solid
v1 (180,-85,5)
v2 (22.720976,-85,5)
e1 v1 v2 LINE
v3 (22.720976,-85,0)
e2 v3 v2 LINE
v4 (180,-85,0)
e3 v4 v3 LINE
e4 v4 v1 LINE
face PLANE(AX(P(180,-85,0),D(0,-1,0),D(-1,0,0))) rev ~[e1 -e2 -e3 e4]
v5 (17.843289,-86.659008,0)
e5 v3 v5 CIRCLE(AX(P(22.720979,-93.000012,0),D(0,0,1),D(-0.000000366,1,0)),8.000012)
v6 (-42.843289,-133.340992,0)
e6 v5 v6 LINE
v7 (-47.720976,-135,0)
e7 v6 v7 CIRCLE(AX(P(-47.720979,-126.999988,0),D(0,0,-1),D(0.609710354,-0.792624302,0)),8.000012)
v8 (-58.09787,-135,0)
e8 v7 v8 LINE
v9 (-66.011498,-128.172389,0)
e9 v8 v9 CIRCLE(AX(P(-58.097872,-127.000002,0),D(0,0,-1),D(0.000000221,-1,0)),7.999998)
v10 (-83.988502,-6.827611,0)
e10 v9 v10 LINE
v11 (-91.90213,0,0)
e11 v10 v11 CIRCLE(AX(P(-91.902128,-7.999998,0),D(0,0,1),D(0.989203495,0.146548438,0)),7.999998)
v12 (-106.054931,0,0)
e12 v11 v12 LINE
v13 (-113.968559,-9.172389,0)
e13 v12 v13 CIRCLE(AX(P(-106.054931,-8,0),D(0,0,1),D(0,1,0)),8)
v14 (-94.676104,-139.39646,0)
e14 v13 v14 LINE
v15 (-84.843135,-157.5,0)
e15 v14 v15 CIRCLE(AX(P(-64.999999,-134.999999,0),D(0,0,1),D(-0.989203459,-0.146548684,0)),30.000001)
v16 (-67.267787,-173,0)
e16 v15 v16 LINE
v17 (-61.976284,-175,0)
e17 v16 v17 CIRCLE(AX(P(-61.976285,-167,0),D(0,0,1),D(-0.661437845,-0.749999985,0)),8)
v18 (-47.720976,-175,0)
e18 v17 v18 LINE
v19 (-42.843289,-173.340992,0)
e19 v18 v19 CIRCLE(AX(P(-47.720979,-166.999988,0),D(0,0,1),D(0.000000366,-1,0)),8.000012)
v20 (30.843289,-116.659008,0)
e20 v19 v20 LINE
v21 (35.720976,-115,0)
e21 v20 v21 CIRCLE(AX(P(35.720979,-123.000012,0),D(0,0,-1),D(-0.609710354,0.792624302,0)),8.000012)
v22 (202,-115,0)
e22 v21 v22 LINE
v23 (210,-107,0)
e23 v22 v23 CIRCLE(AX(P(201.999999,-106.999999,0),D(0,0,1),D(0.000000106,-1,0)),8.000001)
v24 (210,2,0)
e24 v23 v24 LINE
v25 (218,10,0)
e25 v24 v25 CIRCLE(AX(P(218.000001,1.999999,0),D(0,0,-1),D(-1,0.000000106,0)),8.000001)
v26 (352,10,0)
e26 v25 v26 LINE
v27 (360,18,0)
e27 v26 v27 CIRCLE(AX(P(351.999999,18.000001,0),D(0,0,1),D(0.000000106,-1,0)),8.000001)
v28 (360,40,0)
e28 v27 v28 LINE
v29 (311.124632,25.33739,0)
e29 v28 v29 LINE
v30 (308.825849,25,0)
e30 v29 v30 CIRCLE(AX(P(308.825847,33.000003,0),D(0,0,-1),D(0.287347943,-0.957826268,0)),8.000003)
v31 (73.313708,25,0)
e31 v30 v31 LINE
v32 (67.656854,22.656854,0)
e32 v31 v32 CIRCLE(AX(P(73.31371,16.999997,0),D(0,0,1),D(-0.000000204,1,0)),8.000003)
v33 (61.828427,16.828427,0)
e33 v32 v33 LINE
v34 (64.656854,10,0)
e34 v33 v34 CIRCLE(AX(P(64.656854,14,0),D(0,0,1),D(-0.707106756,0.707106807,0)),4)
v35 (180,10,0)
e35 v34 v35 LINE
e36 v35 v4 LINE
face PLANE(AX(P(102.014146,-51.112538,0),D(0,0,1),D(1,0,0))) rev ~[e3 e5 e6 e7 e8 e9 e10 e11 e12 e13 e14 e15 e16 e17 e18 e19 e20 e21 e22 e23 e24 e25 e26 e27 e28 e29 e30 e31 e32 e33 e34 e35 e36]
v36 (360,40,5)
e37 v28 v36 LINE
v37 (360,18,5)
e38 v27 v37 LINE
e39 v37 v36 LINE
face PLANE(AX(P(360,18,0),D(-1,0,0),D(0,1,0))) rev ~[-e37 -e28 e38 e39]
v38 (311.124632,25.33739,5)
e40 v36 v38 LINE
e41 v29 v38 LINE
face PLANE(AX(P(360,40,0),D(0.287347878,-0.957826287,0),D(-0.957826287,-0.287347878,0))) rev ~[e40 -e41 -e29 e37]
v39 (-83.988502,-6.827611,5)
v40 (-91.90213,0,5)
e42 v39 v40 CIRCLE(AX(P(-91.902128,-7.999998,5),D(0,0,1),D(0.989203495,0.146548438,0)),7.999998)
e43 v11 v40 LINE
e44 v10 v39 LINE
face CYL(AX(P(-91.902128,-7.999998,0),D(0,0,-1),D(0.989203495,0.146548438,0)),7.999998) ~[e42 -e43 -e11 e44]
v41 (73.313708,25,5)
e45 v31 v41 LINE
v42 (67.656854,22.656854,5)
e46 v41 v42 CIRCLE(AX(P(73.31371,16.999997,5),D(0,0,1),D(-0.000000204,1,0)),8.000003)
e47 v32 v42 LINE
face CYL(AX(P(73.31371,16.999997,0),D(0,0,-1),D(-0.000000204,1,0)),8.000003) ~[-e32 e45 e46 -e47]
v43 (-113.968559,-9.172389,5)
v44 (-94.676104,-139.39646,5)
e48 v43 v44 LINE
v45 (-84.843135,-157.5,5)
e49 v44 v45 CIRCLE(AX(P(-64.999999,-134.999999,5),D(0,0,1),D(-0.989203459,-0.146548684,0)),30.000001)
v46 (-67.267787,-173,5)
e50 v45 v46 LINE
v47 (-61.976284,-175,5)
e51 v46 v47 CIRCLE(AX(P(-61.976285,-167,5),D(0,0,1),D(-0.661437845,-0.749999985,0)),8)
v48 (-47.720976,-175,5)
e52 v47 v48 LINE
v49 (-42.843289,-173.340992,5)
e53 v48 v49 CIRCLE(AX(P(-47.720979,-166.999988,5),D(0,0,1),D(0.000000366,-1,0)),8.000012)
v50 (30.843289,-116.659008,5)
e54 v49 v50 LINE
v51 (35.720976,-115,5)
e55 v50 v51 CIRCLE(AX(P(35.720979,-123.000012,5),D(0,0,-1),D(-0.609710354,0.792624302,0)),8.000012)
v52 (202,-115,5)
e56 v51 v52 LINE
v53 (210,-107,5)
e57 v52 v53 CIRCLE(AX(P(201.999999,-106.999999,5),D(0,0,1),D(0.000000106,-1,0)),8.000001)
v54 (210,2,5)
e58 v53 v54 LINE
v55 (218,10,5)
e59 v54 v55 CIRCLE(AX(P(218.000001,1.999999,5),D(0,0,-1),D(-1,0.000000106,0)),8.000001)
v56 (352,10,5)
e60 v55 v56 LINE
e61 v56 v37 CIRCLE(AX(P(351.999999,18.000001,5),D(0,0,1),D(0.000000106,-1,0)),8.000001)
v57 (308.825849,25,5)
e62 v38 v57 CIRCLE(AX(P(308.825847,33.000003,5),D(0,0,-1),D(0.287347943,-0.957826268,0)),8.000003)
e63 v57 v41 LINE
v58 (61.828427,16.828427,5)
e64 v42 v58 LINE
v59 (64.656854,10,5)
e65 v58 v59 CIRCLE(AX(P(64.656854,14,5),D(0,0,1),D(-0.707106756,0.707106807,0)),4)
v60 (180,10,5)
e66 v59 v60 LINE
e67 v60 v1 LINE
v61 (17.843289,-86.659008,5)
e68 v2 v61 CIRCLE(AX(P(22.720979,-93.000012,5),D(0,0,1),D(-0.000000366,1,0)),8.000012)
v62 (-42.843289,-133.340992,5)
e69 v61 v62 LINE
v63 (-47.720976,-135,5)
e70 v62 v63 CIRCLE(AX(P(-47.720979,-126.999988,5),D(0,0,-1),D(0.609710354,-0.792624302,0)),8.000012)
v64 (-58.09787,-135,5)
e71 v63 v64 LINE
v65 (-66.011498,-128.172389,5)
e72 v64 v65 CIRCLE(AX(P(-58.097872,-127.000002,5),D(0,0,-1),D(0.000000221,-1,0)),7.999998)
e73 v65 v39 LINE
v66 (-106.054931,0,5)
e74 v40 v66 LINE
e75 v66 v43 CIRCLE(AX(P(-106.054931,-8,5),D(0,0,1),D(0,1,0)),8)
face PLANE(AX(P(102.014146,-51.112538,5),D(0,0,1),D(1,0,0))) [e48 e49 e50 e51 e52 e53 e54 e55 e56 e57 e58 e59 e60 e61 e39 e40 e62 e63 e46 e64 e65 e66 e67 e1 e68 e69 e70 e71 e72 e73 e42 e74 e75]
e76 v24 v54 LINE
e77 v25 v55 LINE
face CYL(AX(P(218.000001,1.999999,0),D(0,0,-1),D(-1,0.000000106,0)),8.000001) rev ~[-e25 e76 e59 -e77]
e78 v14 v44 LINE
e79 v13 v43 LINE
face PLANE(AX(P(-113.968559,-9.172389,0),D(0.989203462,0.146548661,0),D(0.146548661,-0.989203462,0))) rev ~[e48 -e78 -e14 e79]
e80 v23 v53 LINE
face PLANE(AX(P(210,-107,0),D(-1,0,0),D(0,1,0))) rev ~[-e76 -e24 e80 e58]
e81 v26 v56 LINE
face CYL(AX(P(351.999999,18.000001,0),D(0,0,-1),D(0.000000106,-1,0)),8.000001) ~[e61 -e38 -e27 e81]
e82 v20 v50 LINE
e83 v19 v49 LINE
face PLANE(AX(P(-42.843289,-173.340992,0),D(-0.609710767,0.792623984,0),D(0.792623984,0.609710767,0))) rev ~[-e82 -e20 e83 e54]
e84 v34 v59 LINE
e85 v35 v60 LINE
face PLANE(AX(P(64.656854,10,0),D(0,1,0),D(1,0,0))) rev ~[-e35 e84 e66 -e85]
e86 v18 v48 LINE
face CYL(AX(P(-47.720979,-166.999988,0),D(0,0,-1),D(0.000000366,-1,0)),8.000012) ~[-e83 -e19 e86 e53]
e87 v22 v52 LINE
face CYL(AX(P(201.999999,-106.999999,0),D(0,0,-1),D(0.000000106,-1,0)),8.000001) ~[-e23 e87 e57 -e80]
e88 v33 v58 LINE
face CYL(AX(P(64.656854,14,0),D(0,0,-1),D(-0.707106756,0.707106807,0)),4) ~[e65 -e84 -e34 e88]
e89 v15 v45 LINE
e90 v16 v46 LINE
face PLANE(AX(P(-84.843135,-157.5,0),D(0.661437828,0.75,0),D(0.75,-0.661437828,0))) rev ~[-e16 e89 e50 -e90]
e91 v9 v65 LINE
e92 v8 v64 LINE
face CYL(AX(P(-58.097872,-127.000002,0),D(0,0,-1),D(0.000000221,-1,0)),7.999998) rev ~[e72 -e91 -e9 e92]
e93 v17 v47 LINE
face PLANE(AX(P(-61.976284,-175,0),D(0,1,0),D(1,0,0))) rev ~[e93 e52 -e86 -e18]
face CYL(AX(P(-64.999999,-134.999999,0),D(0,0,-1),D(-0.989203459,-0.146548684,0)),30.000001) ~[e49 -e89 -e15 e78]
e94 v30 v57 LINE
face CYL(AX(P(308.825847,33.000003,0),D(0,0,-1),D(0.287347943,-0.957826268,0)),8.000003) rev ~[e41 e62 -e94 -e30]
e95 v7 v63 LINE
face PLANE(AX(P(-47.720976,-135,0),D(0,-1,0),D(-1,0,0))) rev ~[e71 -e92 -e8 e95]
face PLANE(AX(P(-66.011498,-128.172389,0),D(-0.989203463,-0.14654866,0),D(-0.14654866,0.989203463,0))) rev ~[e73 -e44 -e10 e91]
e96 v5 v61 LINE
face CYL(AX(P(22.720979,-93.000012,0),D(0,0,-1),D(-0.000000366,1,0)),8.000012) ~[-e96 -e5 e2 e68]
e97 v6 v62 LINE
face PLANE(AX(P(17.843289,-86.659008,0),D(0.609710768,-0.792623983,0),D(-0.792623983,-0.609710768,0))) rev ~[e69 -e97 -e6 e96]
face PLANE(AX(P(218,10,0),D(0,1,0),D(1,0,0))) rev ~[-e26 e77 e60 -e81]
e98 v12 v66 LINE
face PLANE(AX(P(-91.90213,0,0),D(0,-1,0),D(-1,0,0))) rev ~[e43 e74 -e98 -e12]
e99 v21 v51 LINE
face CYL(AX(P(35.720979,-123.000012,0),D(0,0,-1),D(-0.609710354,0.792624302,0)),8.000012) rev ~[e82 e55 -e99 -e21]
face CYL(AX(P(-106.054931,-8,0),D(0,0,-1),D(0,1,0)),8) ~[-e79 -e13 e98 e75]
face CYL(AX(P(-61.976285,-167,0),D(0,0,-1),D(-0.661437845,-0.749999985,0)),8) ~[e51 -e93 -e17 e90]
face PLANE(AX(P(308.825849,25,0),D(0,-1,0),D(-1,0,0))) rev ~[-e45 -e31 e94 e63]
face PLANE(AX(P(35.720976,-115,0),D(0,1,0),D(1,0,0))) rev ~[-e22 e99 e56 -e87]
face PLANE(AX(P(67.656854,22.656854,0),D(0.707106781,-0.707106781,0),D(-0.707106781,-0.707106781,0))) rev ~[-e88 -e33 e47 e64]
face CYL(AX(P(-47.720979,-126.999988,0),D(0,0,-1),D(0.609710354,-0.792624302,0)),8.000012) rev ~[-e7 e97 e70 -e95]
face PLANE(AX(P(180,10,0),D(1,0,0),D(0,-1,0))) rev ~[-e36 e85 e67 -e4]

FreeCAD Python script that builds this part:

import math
import FreeCAD as App
import Part
import Sketcher
from FreeCAD import Vector
Q = App.Units.Quantity

doc = App.newDocument("Part")
body = doc.addObject("PartDesign::Body", "Body")

# Sketch on XY plane
sketch1 = doc.addObject("Sketcher::SketchObject", "Sketch")
body.addObject(sketch1)
sketch1.AttachmentSupport = (doc.XY_Plane, [""])
sketch1.MapMode = "FlatFace"
sketch1.addGeometry(Part.LineSegment(Vector(-66, -128.2, 0), Vector(-84, -6.8, 0)), False)
sketch1.addGeometry(Part.ArcOfCircle(Part.Circle(Vector(-91.9, -8, 0), Vector(0, 0, 1), 8), math.radians(8), math.radians(90)), False)
sketch1.addGeometry(Part.LineSegment(Vector(-91.9, 0, 0), Vector(-106.1, 0, 0)), False)
sketch1.addGeometry(Part.ArcOfCircle(Part.Circle(Vector(-106.1, -8, 0), Vector(0, 0, 1), 8), math.radians(90), math.radians(188)), False)
sketch1.addGeometry(Part.LineSegment(Vector(-114, -9.2, 0), Vector(-94.7, -139.4, 0)), False)
sketch1.addGeometry(Part.ArcOfCircle(Part.Circle(Vector(-65, -135, 0), Vector(0, 0, 1), 30), math.radians(-172), math.radians(-131)), False)
sketch1.addGeometry(Part.LineSegment(Vector(-84.8, -157.5, 0), Vector(-67.3, -173, 0)), False)
sketch1.addGeometry(Part.ArcOfCircle(Part.Circle(Vector(-62, -167, 0), Vector(0, 0, 1), 8), math.radians(-131), math.radians(-90)), False)
sketch1.addGeometry(Part.LineSegment(Vector(-62, -175, 0), Vector(-47.7, -175, 0)), False)
sketch1.addGeometry(Part.ArcOfCircle(Part.Circle(Vector(-47.7, -167, 0), Vector(0, 0, 1), 8), math.radians(-90), math.radians(-52)), False)
sketch1.addGeometry(Part.LineSegment(Vector(-42.8, -173.3, 0), Vector(30.8, -116.7, 0)), False)
sketch1.addGeometry(Part.ArcOfCircle(Part.Circle(Vector(35.7, -123, 0), Vector(0, 0, 1), 8), math.radians(90), math.radians(128)), False)
sketch1.addGeometry(Part.LineSegment(Vector(35.7, -115, 0), Vector(202, -115, 0)), False)
sketch1.addGeometry(Part.ArcOfCircle(Part.Circle(Vector(202, -107, 0), Vector(0, 0, 1), 8), math.radians(-90), math.radians(0)), False)
sketch1.addGeometry(Part.LineSegment(Vector(210, -107, 0), Vector(210, 2, 0)), False)
sketch1.addGeometry(Part.ArcOfCircle(Part.Circle(Vector(218, 2, 0), Vector(0, 0, 1), 8), math.radians(90), math.radians(180)), False)
sketch1.addGeometry(Part.LineSegment(Vector(218, 10, 0), Vector(352, 10, 0)), False)
sketch1.addGeometry(Part.ArcOfCircle(Part.Circle(Vector(352, 18, 0), Vector(0, 0, 1), 8), math.radians(-90), math.radians(0)), False)
sketch1.addGeometry(Part.LineSegment(Vector(360, 18, 0), Vector(360, 40, 0)), False)
sketch1.addGeometry(Part.LineSegment(Vector(360, 40, 0), Vector(311.1, 25.3, 0)), False)
sketch1.addGeometry(Part.ArcOfCircle(Part.Circle(Vector(308.8, 33, 0), Vector(0, 0, 1), 8), math.radians(-90), math.radians(-73.3)), False)
sketch1.addGeometry(Part.LineSegment(Vector(308.8, 25, 0), Vector(73.3, 25, 0)), False)
sketch1.addGeometry(Part.ArcOfCircle(Part.Circle(Vector(73.3, 17, 0), Vector(0, 0, 1), 8), math.radians(90), math.radians(135)), False)
sketch1.addGeometry(Part.LineSegment(Vector(67.7, 22.7, 0), Vector(61.8, 16.8, 0)), False)
sketch1.addGeometry(Part.ArcOfCircle(Part.Circle(Vector(64.7, 14, 0), Vector(0, 0, 1), 4), math.radians(135), math.radians(270)), False)
sketch1.addGeometry(Part.LineSegment(Vector(64.7, 10, 0), Vector(180, 10, 0)), False)
sketch1.addGeometry(Part.LineSegment(Vector(180, 10, 0), Vector(180, -85, 0)), False)
sketch1.addGeometry(Part.LineSegment(Vector(180, -85, 0), Vector(22.7, -85, 0)), False)
sketch1.addGeometry(Part.ArcOfCircle(Part.Circle(Vector(22.7, -93, 0), Vector(0, 0, 1), 8), math.radians(90), math.radians(128)), False)
sketch1.addGeometry(Part.LineSegment(Vector(17.8, -86.7, 0), Vector(-42.8, -133.3, 0)), False)
sketch1.addGeometry(Part.ArcOfCircle(Part.Circle(Vector(-47.7, -127, 0), Vector(0, 0, 1), 8), math.radians(-90), math.radians(-52)), False)
sketch1.addGeometry(Part.LineSegment(Vector(-47.7, -135, 0), Vector(-58.1, -135, 0)), False)
sketch1.addGeometry(Part.ArcOfCircle(Part.Circle(Vector(-58.1, -127, 0), Vector(0, 0, 1), 8), math.radians(-172), math.radians(-90)), False)
sketch1.addConstraint(Sketcher.Constraint("Tangent", 0, 2, 1, 1))
sketch1.addConstraint(Sketcher.Constraint("Tangent", 1, 2, 2, 1))
sketch1.addConstraint(Sketcher.Constraint("Tangent", 2, 2, 3, 1))
sketch1.addConstraint(Sketcher.Constraint("Tangent", 3, 2, 4, 1))
sketch1.addConstraint(Sketcher.Constraint("Tangent", 4, 2, 5, 1))
sketch1.addConstraint(Sketcher.Constraint("Tangent", 5, 2, 6, 1))
sketch1.addConstraint(Sketcher.Constraint("Tangent", 6, 2, 7, 1))
sketch1.addConstraint(Sketcher.Constraint("Tangent", 7, 2, 8, 1))
sketch1.addConstraint(Sketcher.Constraint("Tangent", 8, 2, 9, 1))
sketch1.addConstraint(Sketcher.Constraint("Tangent", 9, 2, 10, 1))
sketch1.addConstraint(Sketcher.Constraint("Tangent", 10, 2, 11, 2))
sketch1.addConstraint(Sketcher.Constraint("Tangent", 11, 1, 12, 1))
sketch1.addConstraint(Sketcher.Constraint("Tangent", 12, 2, 13, 1))
sketch1.addConstraint(Sketcher.Constraint("Tangent", 13, 2, 14, 1))
sketch1.addConstraint(Sketcher.Constraint("Tangent", 14, 2, 15, 2))
sketch1.addConstraint(Sketcher.Constraint("Tangent", 15, 1, 16, 1))
sketch1.addConstraint(Sketcher.Constraint("Tangent", 16, 2, 17, 1))
sketch1.addConstraint(Sketcher.Constraint("Tangent", 17, 2, 18, 1))
sketch1.addConstraint(Sketcher.Constraint("Coincident", 18, 2, 19, 1))
sketch1.addConstraint(Sketcher.Constraint("Tangent", 19, 2, 20, 2))
sketch1.addConstraint(Sketcher.Constraint("Tangent", 20, 1, 21, 1))
sketch1.addConstraint(Sketcher.Constraint("Tangent", 21, 2, 22, 1))
sketch1.addConstraint(Sketcher.Constraint("Tangent", 22, 2, 23, 1))
sketch1.addConstraint(Sketcher.Constraint("Tangent", 23, 2, 24, 1))
sketch1.addConstraint(Sketcher.Constraint("Tangent", 24, 2, 25, 1))
sketch1.addConstraint(Sketcher.Constraint("Coincident", 25, 2, 26, 1))
sketch1.addConstraint(Sketcher.Constraint("Coincident", 26, 2, 27, 1))
sketch1.addConstraint(Sketcher.Constraint("Tangent", 27, 2, 28, 1))
sketch1.addConstraint(Sketcher.Constraint("Tangent", 28, 2, 29, 1))
sketch1.addConstraint(Sketcher.Constraint("Tangent", 29, 2, 30, 2))
sketch1.addConstraint(Sketcher.Constraint("Tangent", 30, 1, 31, 1))
sketch1.addConstraint(Sketcher.Constraint("Tangent", 31, 2, 32, 2))
sketch1.addConstraint(Sketcher.Constraint("Tangent", 32, 1, 0, 1))
sketch1.addConstraint(Sketcher.Constraint("Horizontal", 2))
sketch1.addConstraint(Sketcher.Constraint("Horizontal", 8))
sketch1.addConstraint(Sketcher.Constraint("Horizontal", 12))
sketch1.addConstraint(Sketcher.Constraint("Vertical", 14))
sketch1.addConstraint(Sketcher.Constraint("Horizontal", 16))
sketch1.addConstraint(Sketcher.Constraint("Vertical", 18))
sketch1.addConstraint(Sketcher.Constraint("Horizontal", 21))
sketch1.addConstraint(Sketcher.Constraint("Horizontal", 25))
sketch1.addConstraint(Sketcher.Constraint("Vertical", 26))
sketch1.addConstraint(Sketcher.Constraint("Horizontal", 27))
sketch1.addConstraint(Sketcher.Constraint("Horizontal", 31))
sketch1.addConstraint(Sketcher.Constraint("Equal", 1, 3))
sketch1.addConstraint(Sketcher.Constraint("Equal", 3, 7))
sketch1.addConstraint(Sketcher.Constraint("Equal", 9, 11))
sketch1.addConstraint(Sketcher.Constraint("Equal", 7, 13))
sketch1.addConstraint(Sketcher.Constraint("Equal", 13, 15))
sketch1.addConstraint(Sketcher.Constraint("Equal", 15, 17))
sketch1.addConstraint(Sketcher.Constraint("Equal", 20, 22))
sketch1.addConstraint(Sketcher.Constraint("Equal", 11, 28))
sketch1.addConstraint(Sketcher.Constraint("Equal", 28, 30))
sketch1.addConstraint(Sketcher.Constraint("Equal", 7, 32))
sketch1.addConstraint(Sketcher.Constraint("PointOnObject", 1, 2, -1))
sketch1.addConstraint(Sketcher.Constraint("Parallel", 0, 4))
sketch1.addConstraint(Sketcher.Constraint("Parallel", 10, 29))
sketch1.addConstraint(Sketcher.Constraint("Horizontal", 16, 2, 24, 2))
sketch1.addConstraint(Sketcher.Constraint("Horizontal", 5, 3, 30, 1))
sketch1.addConstraint(Sketcher.Constraint("Vertical", 9, 3, 30, 3))
sketch1.addConstraint(Sketcher.Constraint("Radius", 1, 7.999998))
sketch1.addConstraint(Sketcher.Constraint("Radius", 5, 30.000001))
sketch1.addConstraint(Sketcher.Constraint("Radius", 24, 4.0))
sketch1.addConstraint(Sketcher.Constraint("DistanceX", 16, 1, 16, 2, 134.0))
sketch1.addConstraint(Sketcher.Constraint("DistanceY", 14, 1, 14, 2, 109.0))
sketch1.addConstraint(Sketcher.Constraint("DistanceY", 18, 1, 18, 2, 22.0))
sketch1.addConstraint(Sketcher.Constraint("DistanceY", 26, 2, 26, 1, 95.0))
sketch1.addConstraint(Sketcher.Constraint("Angle", 23, Q("-135 deg")))
sketch1.addConstraint(Sketcher.Constraint("DistanceX", 5, 3, -1, 1, 64.999999))
sketch1.addConstraint(Sketcher.Constraint("DistanceY", 5, 3, -1, 1, 134.999999))
sketch1.addConstraint(Sketcher.Constraint("DistanceY", 7, 3, -1, 1, 167.0))
sketch1.addConstraint(Sketcher.Constraint("DistanceX", -1, 1, 13, 3, 201.999999))
sketch1.addConstraint(Sketcher.Constraint("DistanceY", 13, 3, -1, 1, 106.999999))
sketch1.addConstraint(Sketcher.Constraint("DistanceY", 6, 2, -1, 1, 173.0))
sketch1.addConstraint(Sketcher.Constraint("DistanceY", -1, 1, 20, 1, 25.0))
sketch1.addConstraint(Sketcher.Constraint("DistanceX", -1, 1, 25, 2, 180.0))
sketch1.addConstraint(Sketcher.Constraint("DistanceY", 1, 3, 20, 3, 41.000002))
sketch1.addConstraint(Sketcher.Constraint("DistanceX", 28, 3, 11, 3, 13.0))
sketch1.addConstraint(Sketcher.Constraint("Radius", 9, 8.000012))
sketch1.addConstraint(Sketcher.Constraint("DistanceX", 2, 2, 2, 1, 14.152801))
sketch1.addConstraint(Sketcher.Constraint("DistanceX", 21, 2, 21, 1, 235.512141))
sketch1.addConstraint(Sketcher.Constraint("DistanceX", 0, 2, -1, 1, 83.988502))
sketch1.addConstraint(Sketcher.Constraint("DistanceX", 8, 1, 8, 2, 14.255308))
sketch1.addConstraint(Sketcher.Constraint("DistanceX", 25, 1, 25, 2, 115.343146))
pad1 = doc.addObject("PartDesign::Pad", "Pad")
body.addObject(pad1)
pad1.Profile = sketch1
pad1.Length = 5

doc.recompute()
